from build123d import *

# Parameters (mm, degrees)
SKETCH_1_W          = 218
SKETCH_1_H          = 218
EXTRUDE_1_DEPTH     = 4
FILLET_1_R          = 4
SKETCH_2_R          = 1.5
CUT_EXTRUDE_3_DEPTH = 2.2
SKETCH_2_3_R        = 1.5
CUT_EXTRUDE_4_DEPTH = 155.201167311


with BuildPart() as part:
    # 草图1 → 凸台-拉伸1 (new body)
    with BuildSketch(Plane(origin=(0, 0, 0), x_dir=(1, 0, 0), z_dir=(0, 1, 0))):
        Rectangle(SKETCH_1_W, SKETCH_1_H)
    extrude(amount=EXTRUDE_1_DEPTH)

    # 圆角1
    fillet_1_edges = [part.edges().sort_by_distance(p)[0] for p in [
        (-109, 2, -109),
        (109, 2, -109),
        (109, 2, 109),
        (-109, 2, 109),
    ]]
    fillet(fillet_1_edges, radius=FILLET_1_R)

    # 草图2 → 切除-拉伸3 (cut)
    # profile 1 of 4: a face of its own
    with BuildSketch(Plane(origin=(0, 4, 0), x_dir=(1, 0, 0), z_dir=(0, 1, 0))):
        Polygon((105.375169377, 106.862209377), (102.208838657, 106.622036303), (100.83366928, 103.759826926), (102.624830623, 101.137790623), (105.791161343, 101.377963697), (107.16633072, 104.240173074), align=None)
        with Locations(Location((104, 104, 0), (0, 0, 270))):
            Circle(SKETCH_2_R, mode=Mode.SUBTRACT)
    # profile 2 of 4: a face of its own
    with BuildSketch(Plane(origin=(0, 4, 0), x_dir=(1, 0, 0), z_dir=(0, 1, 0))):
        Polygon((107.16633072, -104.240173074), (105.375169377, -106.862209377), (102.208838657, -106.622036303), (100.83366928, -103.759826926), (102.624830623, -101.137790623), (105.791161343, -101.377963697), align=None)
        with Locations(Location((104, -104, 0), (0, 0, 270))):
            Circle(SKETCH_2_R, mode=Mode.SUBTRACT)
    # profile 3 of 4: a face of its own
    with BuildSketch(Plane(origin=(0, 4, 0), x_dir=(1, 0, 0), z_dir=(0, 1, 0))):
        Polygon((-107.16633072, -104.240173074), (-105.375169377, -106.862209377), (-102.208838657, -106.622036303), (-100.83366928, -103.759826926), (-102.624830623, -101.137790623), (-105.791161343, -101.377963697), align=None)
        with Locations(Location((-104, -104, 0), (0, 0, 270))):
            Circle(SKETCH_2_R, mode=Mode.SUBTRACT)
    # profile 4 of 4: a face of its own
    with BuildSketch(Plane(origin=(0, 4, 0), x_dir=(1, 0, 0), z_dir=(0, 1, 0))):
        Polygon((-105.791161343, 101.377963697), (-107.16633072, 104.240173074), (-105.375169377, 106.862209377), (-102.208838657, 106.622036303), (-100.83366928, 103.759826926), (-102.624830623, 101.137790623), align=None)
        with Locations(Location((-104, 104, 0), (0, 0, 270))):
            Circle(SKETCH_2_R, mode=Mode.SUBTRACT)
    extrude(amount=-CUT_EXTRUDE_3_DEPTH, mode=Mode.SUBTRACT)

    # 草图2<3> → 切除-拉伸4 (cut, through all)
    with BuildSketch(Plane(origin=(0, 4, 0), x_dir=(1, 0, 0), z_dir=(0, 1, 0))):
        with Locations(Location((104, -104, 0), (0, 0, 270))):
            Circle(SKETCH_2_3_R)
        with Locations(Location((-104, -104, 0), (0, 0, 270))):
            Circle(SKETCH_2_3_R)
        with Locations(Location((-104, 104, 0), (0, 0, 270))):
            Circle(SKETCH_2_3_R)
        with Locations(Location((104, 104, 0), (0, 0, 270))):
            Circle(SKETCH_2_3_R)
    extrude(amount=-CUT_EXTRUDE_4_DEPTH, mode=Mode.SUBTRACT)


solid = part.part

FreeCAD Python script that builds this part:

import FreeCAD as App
import Part
import Sketcher
from FreeCAD import Vector
Q = App.Units.Quantity


def edges_at(feature, points):
    """Names of the edges that pass closest to the given points."""
    edges = feature.Shape.Edges
    near = lambda p: min(range(len(edges)), key=lambda i: edges[i].distToShape(Part.Vertex(*p))[0])
    return sorted({f"Edge{near(p) + 1}" for p in points})

doc = App.newDocument("Part")
body = doc.addObject("PartDesign::Body", "Body")

# Sketch on XZ plane
sketch1 = body.newObject("Sketcher::SketchObject", "Sketch")
sketch1.AttachmentSupport = (doc.getObject("XZ_Plane"), [""])
sketch1.MapMode = "FlatFace"
sketch1.addGeometry([
    Part.LineSegment(Vector(-109, -109, 0), Vector(-109, 109, 0)),
    Part.LineSegment(Vector(-109, 109, 0), Vector(109, 109, 0)),
    Part.LineSegment(Vector(109, 109, 0), Vector(109, -109, 0)),
    Part.LineSegment(Vector(109, -109, 0), Vector(-109, -109, 0)),
], False)
sketch1.addConstraint([
    Sketcher.Constraint("Coincident", 0, 2, 1, 1),
    Sketcher.Constraint("Coincident", 1, 2, 2, 1),
    Sketcher.Constraint("Coincident", 2, 2, 3, 1),
    Sketcher.Constraint("Coincident", 3, 2, 0, 1),
    Sketcher.Constraint("Vertical", 0),
    Sketcher.Constraint("Horizontal", 1),
    Sketcher.Constraint("Vertical", 2),
    Sketcher.Constraint("Horizontal", 3),
    Sketcher.Constraint("Symmetric", 0, 2, 2, 2, -1, 1),
    Sketcher.Constraint("Equal", 3, 0),
    Sketcher.Constraint("DistanceX", 1, 1, 1, 2, Q("218 mm")),
])
pad1 = body.newObject("PartDesign::Pad", "Pad")
pad1.Profile = sketch1
pad1.Length = 4
pad1.Reversed = True
doc.recompute()

fillet = body.newObject("PartDesign::Fillet", "Fillet")
fillet.Base = (pad1, edges_at(pad1, [
    (-109, 2, -109),
    (109, 2, -109),
    (109, 2, 109),
    (-109, 2, 109),
]))
fillet.Radius = 4

# Sketch on XZ plane
sketch2 = body.newObject("Sketcher::SketchObject", "Sketch001")
sketch2.AttachmentSupport = (doc.getObject("XZ_Plane"), [""])
sketch2.MapMode = "FlatFace"
sketch2.AttachmentOffset = App.Placement(Vector(0, 0, -4), App.Rotation())
sketch2.addGeometry([
    Part.LineSegment(Vector(105.375169, -106.862209, 0), Vector(102.208839, -106.622036, 0)),  # 0
    Part.LineSegment(Vector(102.208839, -106.622036, 0), Vector(100.833669, -103.759827, 0)),  # 1
    Part.LineSegment(Vector(100.833669, -103.759827, 0), Vector(102.624831, -101.137791, 0)),  # 2
    Part.LineSegment(Vector(102.624831, -101.137791, 0), Vector(105.791161, -101.377964, 0)),  # 3
    Part.LineSegment(Vector(105.791161, -101.377964, 0), Vector(107.166331, -104.240173, 0)),  # 4
    Part.LineSegment(Vector(107.166331, -104.240173, 0), Vector(105.375169, -106.862209, 0)),  # 5
    Part.Circle(Vector(104, -104, 0), Vector(0, 0, 1), 1.5),  # 6
    Part.LineSegment(Vector(105.375169, 106.862209, 0), Vector(107.166331, 104.240173, 0)),  # 7
    Part.LineSegment(Vector(107.166331, 104.240173, 0), Vector(105.791161, 101.377964, 0)),  # 8
    Part.LineSegment(Vector(105.791161, 101.377964, 0), Vector(102.624831, 101.137791, 0)),  # 9
    Part.LineSegment(Vector(102.624831, 101.137791, 0), Vector(100.833669, 103.759827, 0)),  # 10
    Part.LineSegment(Vector(100.833669, 103.759827, 0), Vector(102.208839, 106.622036, 0)),  # 11
    Part.LineSegment(Vector(102.208839, 106.622036, 0), Vector(105.375169, 106.862209, 0)),  # 12
    Part.Circle(Vector(104, 104, 0), Vector(0, 0, 1), 1.5),  # 13
    Part.LineSegment(Vector(-107.166331, 104.240173, 0), Vector(-105.375169, 106.862209, 0)),  # 14
    Part.LineSegment(Vector(-105.375169, 106.862209, 0), Vector(-102.208839, 106.622036, 0)),  # 15
    Part.LineSegment(Vector(-102.208839, 106.622036, 0), Vector(-100.833669, 103.759827, 0)),  # 16
    Part.LineSegment(Vector(-100.833669, 103.759827, 0), Vector(-102.624831, 101.137791, 0)),  # 17
    Part.LineSegment(Vector(-102.624831, 101.137791, 0), Vector(-105.791161, 101.377964, 0)),  # 18
    Part.LineSegment(Vector(-105.791161, 101.377964, 0), Vector(-107.166331, 104.240173, 0)),  # 19
    Part.Circle(Vector(-104, 104, 0), Vector(0, 0, 1), 1.5),  # 20
    Part.LineSegment(Vector(-107.166331, -104.240173, 0), Vector(-105.791161, -101.377964, 0)),  # 21
    Part.LineSegment(Vector(-105.791161, -101.377964, 0), Vector(-102.624831, -101.137791, 0)),  # 22
    Part.LineSegment(Vector(-102.624831, -101.137791, 0), Vector(-100.833669, -103.759827, 0)),  # 23
    Part.LineSegment(Vector(-100.833669, -103.759827, 0), Vector(-102.208839, -106.622036, 0)),  # 24
    Part.LineSegment(Vector(-102.208839, -106.622036, 0), Vector(-105.375169, -106.862209, 0)),  # 25
    Part.LineSegment(Vector(-105.375169, -106.862209, 0), Vector(-107.166331, -104.240173, 0)),  # 26
    Part.Circle(Vector(-104, -104, 0), Vector(0, 0, 1), 1.5),  # 27
], False)
sketch2.addConstraint([
    Sketcher.Constraint("Coincident", 0, 2, 1, 1),
    Sketcher.Constraint("Coincident", 1, 2, 2, 1),
    Sketcher.Constraint("Coincident", 2, 2, 3, 1),
    Sketcher.Constraint("Coincident", 3, 2, 4, 1),
    Sketcher.Constraint("Coincident", 4, 2, 5, 1),
    Sketcher.Constraint("Coincident", 5, 2, 0, 1),
    Sketcher.Constraint("Coincident", 7, 2, 8, 1),
    Sketcher.Constraint("Coincident", 8, 2, 9, 1),
    Sketcher.Constraint("Coincident", 9, 2, 10, 1),
    Sketcher.Constraint("Coincident", 10, 2, 11, 1),
    Sketcher.Constraint("Coincident", 11, 2, 12, 1),
    Sketcher.Constraint("Coincident", 12, 2, 7, 1),
    Sketcher.Constraint("Coincident", 14, 2, 15, 1),
    Sketcher.Constraint("Coincident", 15, 2, 16, 1),
    Sketcher.Constraint("Coincident", 16, 2, 17, 1),
    Sketcher.Constraint("Coincident", 17, 2, 18, 1),
    Sketcher.Constraint("Coincident", 18, 2, 19, 1),
    Sketcher.Constraint("Coincident", 19, 2, 14, 1),
    Sketcher.Constraint("Coincident", 21, 2, 22, 1),
    Sketcher.Constraint("Coincident", 22, 2, 23, 1),
    Sketcher.Constraint("Coincident", 23, 2, 24, 1),
    Sketcher.Constraint("Coincident", 24, 2, 25, 1),
    Sketcher.Constraint("Coincident", 25, 2, 26, 1),
    Sketcher.Constraint("Coincident", 26, 2, 21, 1),
    Sketcher.Constraint("Equal", 6, 13),
    Sketcher.Constraint("Equal", 13, 20),
    Sketcher.Constraint("Equal", 20, 27),
    Sketcher.Constraint("Symmetric", 6, 3, 20, 3, -1, 1),
    Sketcher.Constraint("Symmetric", 13, 3, 27, 3, -1, 1),
    Sketcher.Constraint("Symmetric", 5, 2, 14, 2, -1, 1),
    Sketcher.Constraint("Symmetric", 0, 2, 15, 2, -1, 1),
    Sketcher.Constraint("Symmetric", 1, 2, 16, 2, -1, 1),
    Sketcher.Constraint("Symmetric", 2, 2, 17, 2, -1, 1),
    Sketcher.Constraint("Symmetric", 3, 2, 18, 2, -1, 1),
    Sketcher.Constraint("Symmetric", 4, 2, 19, 2, -1, 1),
    Sketcher.Constraint("Symmetric", 8, 2, 21, 2, -1, 1),
    Sketcher.Constraint("Symmetric", 9, 2, 22, 2, -1, 1),
    Sketcher.Constraint("Symmetric", 10, 2, 23, 2, -1, 1),
    Sketcher.Constraint("Symmetric", 11, 2, 24, 2, -1, 1),
    Sketcher.Constraint("Symmetric", 12, 2, 25, 2, -1, 1),
    Sketcher.Constraint("Symmetric", 7, 2, 26, 2, -1, 1),
    Sketcher.Constraint("Symmetric", 13, 3, 20, 3, -2),
    Sketcher.Constraint("Symmetric", 12, 2, 14, 2, -2),
    Sketcher.Constraint("Symmetric", 11, 2, 15, 2, -2),
    Sketcher.Constraint("Symmetric", 10, 2, 16, 2, -2),
    Sketcher.Constraint("Symmetric", 9, 2, 17, 2, -2),
    Sketcher.Constraint("Symmetric", 8, 2, 18, 2, -2),
    Sketcher.Constraint("Symmetric", 7, 2, 19, 2, -2),
    Sketcher.Constraint("Parallel", 0, 3),
    Sketcher.Constraint("Parallel", 1, 4),
    Sketcher.Constraint("Parallel", 2, 5),
    Sketcher.Constraint("Equal", 0, 1),
    Sketcher.Constraint("Equal", 1, 2),
    Sketcher.Constraint("Equal", 2, 3),
    Sketcher.Constraint("Diameter", 6, Q("3 mm")),
    Sketcher.Constraint("DistanceX", -1, 1, 6, 3, Q("104 mm")),
    Sketcher.Constraint("DistanceY", 6, 3, -1, 1, Q("104 mm")),
    Sketcher.Constraint("DistanceY", 1, 2, 7, 2, Q("208 mm")),
    Sketcher.Constraint("DistanceX", 14, 2, 9, 2, Q("208 mm")),
    Sketcher.Constraint("DistanceX", 2, 2, 4, 2, Q("4.5415 mm")),
    Sketcher.Constraint("DistanceX", -1, 1, 0, 2, Q("102.208839 mm")),
    Sketcher.Constraint("DistanceX", -1, 1, 1, 2, Q("100.833669 mm")),
    Sketcher.Constraint("DistanceY", 2, 2, -1, 1, Q("101.137791 mm")),
])
pocket1 = body.newObject("PartDesign::Pocket", "Pocket")
pocket1.Profile = sketch2
pocket1.Length = 2.2
pocket1.Reversed = True

# Sketch on XZ plane
sketch3 = body.newObject("Sketcher::SketchObject", "Sketch002")
sketch3.AttachmentSupport = (doc.getObject("XZ_Plane"), [""])
sketch3.MapMode = "FlatFace"
sketch3.AttachmentOffset = App.Placement(Vector(0, 0, -4), App.Rotation())
sketch3.addGeometry([
    Part.Circle(Vector(104, 104, 0), Vector(0, 0, 1), 1.5),
    Part.Circle(Vector(-104, 104, 0), Vector(0, 0, 1), 1.5),
    Part.Circle(Vector(-104, -104, 0), Vector(0, 0, 1), 1.5),
    Part.Circle(Vector(104, -104, 0), Vector(0, 0, 1), 1.5),
], False)
sketch3.addConstraint([
    Sketcher.Constraint("Equal", 0, 1),
    Sketcher.Constraint("Equal", 1, 2),
    Sketcher.Constraint("Equal", 2, 3),
    Sketcher.Constraint("Symmetric", 0, 3, 2, 3, -1, 1),
    Sketcher.Constraint("Symmetric", 1, 3, 3, 3, -1, 1),
    Sketcher.Constraint("Symmetric", 0, 3, 1, 3, -2),
    Sketcher.Constraint("Diameter", 0, Q("3 mm")),
    Sketcher.Constraint("DistanceX", -1, 1, 0, 3, Q("104 mm")),
    Sketcher.Constraint("DistanceY", -1, 1, 0, 3, Q("104 mm")),
])
pocket2 = body.newObject("PartDesign::Pocket", "Pocket001")
pocket2.Profile = sketch3
pocket2.Type = "ThroughAll"
pocket2.Reversed = True

doc.recompute()
